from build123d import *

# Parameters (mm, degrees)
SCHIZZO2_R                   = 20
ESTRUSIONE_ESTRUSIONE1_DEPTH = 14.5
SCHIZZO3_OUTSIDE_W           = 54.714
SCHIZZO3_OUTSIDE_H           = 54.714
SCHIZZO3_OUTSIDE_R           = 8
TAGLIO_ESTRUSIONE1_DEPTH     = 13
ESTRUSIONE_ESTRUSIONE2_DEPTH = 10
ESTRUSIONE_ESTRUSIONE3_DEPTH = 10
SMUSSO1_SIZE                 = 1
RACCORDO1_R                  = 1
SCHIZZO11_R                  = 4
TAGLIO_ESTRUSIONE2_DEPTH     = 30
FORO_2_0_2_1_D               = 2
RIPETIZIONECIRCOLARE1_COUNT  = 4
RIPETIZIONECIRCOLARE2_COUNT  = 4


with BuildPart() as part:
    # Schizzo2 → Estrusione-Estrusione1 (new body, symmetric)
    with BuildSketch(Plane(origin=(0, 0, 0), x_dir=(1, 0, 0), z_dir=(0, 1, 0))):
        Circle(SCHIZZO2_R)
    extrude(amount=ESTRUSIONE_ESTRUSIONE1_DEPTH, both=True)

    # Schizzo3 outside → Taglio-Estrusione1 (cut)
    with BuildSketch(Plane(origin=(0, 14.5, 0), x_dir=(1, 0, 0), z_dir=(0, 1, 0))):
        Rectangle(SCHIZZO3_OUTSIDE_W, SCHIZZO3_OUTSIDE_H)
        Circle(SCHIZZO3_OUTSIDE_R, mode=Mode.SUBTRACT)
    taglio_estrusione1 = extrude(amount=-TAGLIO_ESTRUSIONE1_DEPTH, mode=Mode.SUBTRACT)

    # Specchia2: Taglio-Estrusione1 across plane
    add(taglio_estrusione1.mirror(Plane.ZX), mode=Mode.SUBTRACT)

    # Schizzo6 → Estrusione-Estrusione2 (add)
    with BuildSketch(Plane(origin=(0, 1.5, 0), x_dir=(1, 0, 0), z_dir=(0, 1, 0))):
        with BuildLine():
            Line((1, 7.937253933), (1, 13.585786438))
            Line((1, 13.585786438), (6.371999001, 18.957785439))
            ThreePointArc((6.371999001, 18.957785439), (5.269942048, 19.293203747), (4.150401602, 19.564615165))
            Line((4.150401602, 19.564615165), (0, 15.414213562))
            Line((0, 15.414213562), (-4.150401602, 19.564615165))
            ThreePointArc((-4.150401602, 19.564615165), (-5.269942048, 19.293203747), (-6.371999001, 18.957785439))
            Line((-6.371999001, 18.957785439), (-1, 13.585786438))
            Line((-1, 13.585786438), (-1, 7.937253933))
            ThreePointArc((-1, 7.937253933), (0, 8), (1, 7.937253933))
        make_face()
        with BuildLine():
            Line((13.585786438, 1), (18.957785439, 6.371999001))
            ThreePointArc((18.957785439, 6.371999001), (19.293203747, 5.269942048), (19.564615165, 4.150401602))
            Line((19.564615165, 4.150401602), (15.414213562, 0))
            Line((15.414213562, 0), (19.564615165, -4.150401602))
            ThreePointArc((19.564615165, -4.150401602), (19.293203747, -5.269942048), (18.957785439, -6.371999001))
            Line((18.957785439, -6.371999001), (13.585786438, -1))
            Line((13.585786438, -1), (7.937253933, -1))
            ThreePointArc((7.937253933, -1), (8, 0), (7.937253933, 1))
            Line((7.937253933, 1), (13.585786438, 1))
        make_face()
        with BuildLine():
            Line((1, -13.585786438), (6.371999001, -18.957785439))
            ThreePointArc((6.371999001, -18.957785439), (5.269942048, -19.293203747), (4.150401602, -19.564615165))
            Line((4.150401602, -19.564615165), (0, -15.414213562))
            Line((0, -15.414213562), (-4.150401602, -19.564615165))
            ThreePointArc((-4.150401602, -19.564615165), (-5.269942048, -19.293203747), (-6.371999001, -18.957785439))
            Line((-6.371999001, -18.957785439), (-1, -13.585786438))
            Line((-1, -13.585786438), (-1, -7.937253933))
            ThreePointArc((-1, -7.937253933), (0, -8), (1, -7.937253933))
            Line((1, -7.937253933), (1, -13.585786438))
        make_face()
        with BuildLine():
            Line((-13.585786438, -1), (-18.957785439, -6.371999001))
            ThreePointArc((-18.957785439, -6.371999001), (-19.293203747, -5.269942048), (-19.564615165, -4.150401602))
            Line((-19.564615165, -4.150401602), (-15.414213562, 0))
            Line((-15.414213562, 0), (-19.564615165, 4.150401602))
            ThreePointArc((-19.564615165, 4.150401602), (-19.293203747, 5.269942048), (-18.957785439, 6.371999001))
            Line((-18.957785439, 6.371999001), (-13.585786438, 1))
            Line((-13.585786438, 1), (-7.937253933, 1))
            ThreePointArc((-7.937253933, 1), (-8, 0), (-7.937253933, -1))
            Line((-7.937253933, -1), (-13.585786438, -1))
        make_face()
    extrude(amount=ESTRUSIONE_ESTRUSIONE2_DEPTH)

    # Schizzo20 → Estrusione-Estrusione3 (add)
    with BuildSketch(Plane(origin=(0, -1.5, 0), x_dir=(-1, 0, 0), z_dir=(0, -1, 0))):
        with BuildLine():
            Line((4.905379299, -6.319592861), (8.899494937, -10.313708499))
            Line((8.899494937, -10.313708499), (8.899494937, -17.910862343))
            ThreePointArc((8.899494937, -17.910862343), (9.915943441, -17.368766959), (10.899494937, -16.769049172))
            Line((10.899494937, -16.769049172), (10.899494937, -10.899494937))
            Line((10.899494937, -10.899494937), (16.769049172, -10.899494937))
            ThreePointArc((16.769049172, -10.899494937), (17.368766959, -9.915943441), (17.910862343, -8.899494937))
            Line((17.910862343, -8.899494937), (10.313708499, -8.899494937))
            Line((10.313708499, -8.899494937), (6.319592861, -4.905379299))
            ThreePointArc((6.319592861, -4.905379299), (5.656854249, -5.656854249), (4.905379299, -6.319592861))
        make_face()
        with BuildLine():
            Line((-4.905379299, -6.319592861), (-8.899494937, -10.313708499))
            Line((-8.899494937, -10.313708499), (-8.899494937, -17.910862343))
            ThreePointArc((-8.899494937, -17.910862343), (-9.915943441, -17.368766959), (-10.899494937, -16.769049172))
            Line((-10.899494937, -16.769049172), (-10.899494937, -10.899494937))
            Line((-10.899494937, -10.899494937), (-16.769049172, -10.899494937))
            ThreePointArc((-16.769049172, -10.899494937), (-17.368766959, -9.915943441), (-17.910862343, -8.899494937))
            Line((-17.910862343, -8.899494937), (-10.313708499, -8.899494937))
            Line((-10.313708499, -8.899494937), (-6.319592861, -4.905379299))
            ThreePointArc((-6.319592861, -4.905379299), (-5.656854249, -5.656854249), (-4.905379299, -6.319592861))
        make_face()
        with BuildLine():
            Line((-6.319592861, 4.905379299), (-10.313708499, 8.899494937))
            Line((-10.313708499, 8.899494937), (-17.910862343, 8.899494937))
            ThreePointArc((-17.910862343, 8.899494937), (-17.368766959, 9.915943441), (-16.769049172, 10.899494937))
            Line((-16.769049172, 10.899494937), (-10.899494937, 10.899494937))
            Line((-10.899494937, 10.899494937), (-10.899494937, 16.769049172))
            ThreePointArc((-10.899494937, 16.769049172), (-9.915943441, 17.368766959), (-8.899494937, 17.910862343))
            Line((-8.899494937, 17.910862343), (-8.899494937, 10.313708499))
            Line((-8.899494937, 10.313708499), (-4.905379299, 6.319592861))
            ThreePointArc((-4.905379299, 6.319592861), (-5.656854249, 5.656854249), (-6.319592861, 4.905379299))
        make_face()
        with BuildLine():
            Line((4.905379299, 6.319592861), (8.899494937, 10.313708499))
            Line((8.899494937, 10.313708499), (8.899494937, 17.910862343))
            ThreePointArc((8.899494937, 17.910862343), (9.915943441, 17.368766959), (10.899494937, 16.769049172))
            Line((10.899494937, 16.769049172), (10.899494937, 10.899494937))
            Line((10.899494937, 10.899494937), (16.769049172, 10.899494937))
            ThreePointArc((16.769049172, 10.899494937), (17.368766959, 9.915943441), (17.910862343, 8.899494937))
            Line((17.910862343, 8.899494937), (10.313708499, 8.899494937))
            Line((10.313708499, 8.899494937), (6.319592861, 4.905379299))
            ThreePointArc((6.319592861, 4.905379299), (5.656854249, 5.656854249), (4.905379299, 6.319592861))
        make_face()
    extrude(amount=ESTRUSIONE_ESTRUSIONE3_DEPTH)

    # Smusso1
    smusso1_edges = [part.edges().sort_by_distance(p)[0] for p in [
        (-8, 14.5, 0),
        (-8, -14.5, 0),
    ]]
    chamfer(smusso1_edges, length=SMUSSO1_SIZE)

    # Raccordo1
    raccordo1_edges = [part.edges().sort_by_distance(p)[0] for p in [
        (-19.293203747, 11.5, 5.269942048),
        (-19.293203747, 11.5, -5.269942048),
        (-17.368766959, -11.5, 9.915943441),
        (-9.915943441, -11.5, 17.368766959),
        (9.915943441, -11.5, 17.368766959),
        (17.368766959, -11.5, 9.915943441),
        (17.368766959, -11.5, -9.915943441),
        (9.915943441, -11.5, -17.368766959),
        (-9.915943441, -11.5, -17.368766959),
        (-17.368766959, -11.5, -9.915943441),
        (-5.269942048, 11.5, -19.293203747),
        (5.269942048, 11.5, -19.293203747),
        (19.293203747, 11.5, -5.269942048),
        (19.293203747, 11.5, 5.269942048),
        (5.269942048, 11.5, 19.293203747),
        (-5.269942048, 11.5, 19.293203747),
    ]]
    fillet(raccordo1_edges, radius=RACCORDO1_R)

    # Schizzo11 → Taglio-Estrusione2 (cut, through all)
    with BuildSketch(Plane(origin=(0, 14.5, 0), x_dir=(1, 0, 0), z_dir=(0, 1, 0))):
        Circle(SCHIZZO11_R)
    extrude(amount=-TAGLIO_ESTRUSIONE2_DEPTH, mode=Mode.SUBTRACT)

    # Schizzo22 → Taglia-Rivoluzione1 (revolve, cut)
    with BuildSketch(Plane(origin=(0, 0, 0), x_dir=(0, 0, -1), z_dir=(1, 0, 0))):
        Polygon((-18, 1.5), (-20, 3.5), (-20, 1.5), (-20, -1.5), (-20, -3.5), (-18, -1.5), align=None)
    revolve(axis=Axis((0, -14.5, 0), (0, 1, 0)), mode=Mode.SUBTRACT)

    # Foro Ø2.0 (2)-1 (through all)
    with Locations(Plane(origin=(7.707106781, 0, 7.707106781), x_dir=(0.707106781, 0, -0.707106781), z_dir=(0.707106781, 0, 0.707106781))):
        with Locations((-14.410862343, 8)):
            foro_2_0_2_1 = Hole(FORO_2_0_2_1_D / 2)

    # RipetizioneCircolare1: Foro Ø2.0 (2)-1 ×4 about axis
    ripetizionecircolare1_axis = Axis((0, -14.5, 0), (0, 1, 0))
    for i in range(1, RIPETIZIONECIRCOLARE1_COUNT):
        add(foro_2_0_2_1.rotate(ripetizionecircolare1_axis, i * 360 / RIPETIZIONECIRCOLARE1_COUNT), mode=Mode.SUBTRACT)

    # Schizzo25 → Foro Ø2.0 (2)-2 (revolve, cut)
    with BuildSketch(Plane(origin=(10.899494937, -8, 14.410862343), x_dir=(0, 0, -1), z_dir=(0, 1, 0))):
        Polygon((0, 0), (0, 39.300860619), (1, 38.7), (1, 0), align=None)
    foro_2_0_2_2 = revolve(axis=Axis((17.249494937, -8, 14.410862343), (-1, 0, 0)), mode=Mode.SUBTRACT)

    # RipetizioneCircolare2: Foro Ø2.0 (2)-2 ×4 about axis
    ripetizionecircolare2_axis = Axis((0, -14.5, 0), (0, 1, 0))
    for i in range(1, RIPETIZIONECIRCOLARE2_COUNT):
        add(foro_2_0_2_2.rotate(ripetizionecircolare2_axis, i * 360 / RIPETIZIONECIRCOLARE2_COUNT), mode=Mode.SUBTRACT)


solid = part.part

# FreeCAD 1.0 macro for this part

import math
import FreeCAD as App
import Part
import Sketcher

V = App.Vector
Q = App.Units.Quantity


def edges_at(feature, points):
    """Names of the edges that pass closest to the given points."""
    edges = feature.Shape.Edges
    near = lambda p: min(range(len(edges)), key=lambda i: edges[i].distToShape(Part.Vertex(*p))[0])
    return sorted({f"Edge{near(p) + 1}" for p in points})

doc = App.newDocument("Part")
body = doc.addObject("PartDesign::Body", "Body")

sketch1 = doc.addObject("Sketcher::SketchObject", "Sketch")
body.addObject(sketch1)
sketch1.AttachmentSupport = (doc.XZ_Plane, [""])
sketch1.MapMode = "FlatFace"
sketch1.addGeometry(Part.Circle(V(0, 0, 0), V(0, 0, 1), 20), False)
sketch1.addConstraint(Sketcher.Constraint("Coincident", 0, 3, -1, 1))
sketch1.addConstraint(Sketcher.Constraint("Diameter", 0, 40.0))
pad1 = doc.addObject("PartDesign::Pad", "Pad")
body.addObject(pad1)
pad1.Profile = sketch1
pad1.Length = 29
pad1.Midplane = True

sketch2 = doc.addObject("Sketcher::SketchObject", "Sketch001")
body.addObject(sketch2)
sketch2.AttachmentSupport = (doc.XZ_Plane, [""])
sketch2.MapMode = "FlatFace"
sketch2.AttachmentOffset = App.Placement(V(0, 0, -14.5), App.Rotation())
sketch2.addGeometry(Part.LineSegment(V(-27, -27, 0), V(-27, 27, 0)), False)
sketch2.addGeometry(Part.LineSegment(V(-27, 27, 0), V(27, 27, 0)), False)
sketch2.addGeometry(Part.LineSegment(V(27, 27, 0), V(27, -27, 0)), False)
sketch2.addGeometry(Part.LineSegment(V(27, -27, 0), V(-27, -27, 0)), False)
sketch2.addGeometry(Part.Circle(V(0, 0, 0), V(0, 0, 1), 8), False)
sketch2.addConstraint(Sketcher.Constraint("Coincident", 0, 2, 1, 1))
sketch2.addConstraint(Sketcher.Constraint("Coincident", 1, 2, 2, 1))
sketch2.addConstraint(Sketcher.Constraint("Coincident", 2, 2, 3, 1))
sketch2.addConstraint(Sketcher.Constraint("Coincident", 3, 2, 0, 1))
sketch2.addConstraint(Sketcher.Constraint("Vertical", 0))
sketch2.addConstraint(Sketcher.Constraint("Horizontal", 1))
sketch2.addConstraint(Sketcher.Constraint("Vertical", 2))
sketch2.addConstraint(Sketcher.Constraint("Horizontal", 3))
sketch2.addConstraint(Sketcher.Constraint("Coincident", 4, 3, -1, 1))
sketch2.addConstraint(Sketcher.Constraint("Symmetric", 0, 2, 2, 2, -1, 1))
sketch2.addConstraint(Sketcher.Constraint("Equal", 3, 0))
sketch2.addConstraint(Sketcher.Constraint("Diameter", 4, 16.0))
sketch2.addConstraint(Sketcher.Constraint("DistanceX", 1, 1, 1, 2, 54.714))
pocket1 = doc.addObject("PartDesign::Pocket", "Pocket")
body.addObject(pocket1)
pocket1.Profile = sketch2
pocket1.Length = 13
pocket1.Reversed = True
doc.recompute()

mirrored = doc.addObject("PartDesign::Mirrored", "Mirrored")
body.addObject(mirrored)
mirrored.Originals = [pocket1]
mirrored.MirrorPlane = (doc.XZ_Plane, [""])
body.Tip = mirrored

sketch3 = doc.addObject("Sketcher::SketchObject", "Sketch002")
body.addObject(sketch3)
sketch3.AttachmentSupport = (doc.XZ_Plane, [""])
sketch3.MapMode = "FlatFace"
sketch3.AttachmentOffset = App.Placement(V(0, 0, -1.5), App.Rotation())
sketch3.addGeometry(Part.LineSegment(V(1, -7.9, 0), V(1, -13.6, 0)), False)
sketch3.addGeometry(Part.LineSegment(V(1, -13.6, 0), V(6.4, -19, 0)), False)
sketch3.addGeometry(Part.ArcOfCircle(Part.Circle(V(0, 0, 0), V(0, 0, 1), 20), math.radians(-78.02), math.radians(-71.42)), False)
sketch3.addGeometry(Part.LineSegment(V(4.2, -19.6, 0), V(0, -15.4, 0)), False)
sketch3.addGeometry(Part.LineSegment(V(0, -15.4, 0), V(-4.2, -19.6, 0)), False)
sketch3.addGeometry(Part.ArcOfCircle(Part.Circle(V(0, 0, 0), V(0, 0, 1), 20), math.radians(-108.58), math.radians(-101.98)), False)
sketch3.addGeometry(Part.LineSegment(V(-6.4, -19, 0), V(-1, -13.6, 0)), False)
sketch3.addGeometry(Part.LineSegment(V(-1, -13.6, 0), V(-1, -7.9, 0)), False)
sketch3.addGeometry(Part.ArcOfCircle(Part.Circle(V(0, 0, 0), V(0, 0, 1), 8), math.radians(-97.18), math.radians(-82.82)), False)
sketch3.addGeometry(Part.LineSegment(V(19, -6.4, 0), V(13.6, -1, 0)), False)
sketch3.addGeometry(Part.LineSegment(V(13.6, -1, 0), V(7.9, -1, 0)), False)
sketch3.addGeometry(Part.ArcOfCircle(Part.Circle(V(0, 0, 0), V(0, 0, 1), 8), math.radians(-7.18), math.radians(7.18)), False)
sketch3.addGeometry(Part.LineSegment(V(7.9, 1, 0), V(13.6, 1, 0)), False)
sketch3.addGeometry(Part.LineSegment(V(13.6, 1, 0), V(19, 6.4, 0)), False)
sketch3.addGeometry(Part.ArcOfCircle(Part.Circle(V(0, 0, 0), V(0, 0, 1), 20), math.radians(11.98), math.radians(18.58)), False)
sketch3.addGeometry(Part.LineSegment(V(19.6, 4.2, 0), V(15.4, 0, 0)), False)
sketch3.addGeometry(Part.LineSegment(V(15.4, 0, 0), V(19.6, -4.2, 0)), False)
sketch3.addGeometry(Part.ArcOfCircle(Part.Circle(V(0, 0, 0), V(0, 0, 1), 20), math.radians(-18.58), math.radians(-11.98)), False)
sketch3.addGeometry(Part.LineSegment(V(6.4, 19, 0), V(1, 13.6, 0)), False)
sketch3.addGeometry(Part.LineSegment(V(1, 13.6, 0), V(1, 7.9, 0)), False)
sketch3.addGeometry(Part.ArcOfCircle(Part.Circle(V(0, 0, 0), V(0, 0, 1), 8), math.radians(82.82), math.radians(97.18)), False)
sketch3.addGeometry(Part.LineSegment(V(-1, 7.9, 0), V(-1, 13.6, 0)), False)
sketch3.addGeometry(Part.LineSegment(V(-1, 13.6, 0), V(-6.4, 19, 0)), False)
sketch3.addGeometry(Part.ArcOfCircle(Part.Circle(V(0, 0, 0), V(0, 0, 1), 20), math.radians(101.98), math.radians(108.58)), False)
sketch3.addGeometry(Part.LineSegment(V(-4.2, 19.6, 0), V(0, 15.4, 0)), False)
sketch3.addGeometry(Part.LineSegment(V(0, 15.4, 0), V(4.2, 19.6, 0)), False)
sketch3.addGeometry(Part.ArcOfCircle(Part.Circle(V(0, 0, 0), V(0, 0, 1), 20), math.radians(71.42), math.radians(78.02)), False)
sketch3.addGeometry(Part.LineSegment(V(-19, 6.4, 0), V(-13.6, 1, 0)), False)
sketch3.addGeometry(Part.LineSegment(V(-13.6, 1, 0), V(-7.9, 1, 0)), False)
sketch3.addGeometry(Part.ArcOfCircle(Part.Circle(V(0, 0, 0), V(0, 0, 1), 8), math.radians(172.82), math.radians(187.18)), False)
sketch3.addGeometry(Part.LineSegment(V(-7.9, -1, 0), V(-13.6, -1, 0)), False)
sketch3.addGeometry(Part.LineSegment(V(-13.6, -1, 0), V(-19, -6.4, 0)), False)
sketch3.addGeometry(Part.ArcOfCircle(Part.Circle(V(0, 0, 0), V(0, 0, 1), 20), math.radians(-168.02), math.radians(-161.42)), False)
sketch3.addGeometry(Part.LineSegment(V(-19.6, -4.2, 0), V(-15.4, 0, 0)), False)
sketch3.addGeometry(Part.LineSegment(V(-15.4, 0, 0), V(-19.6, 4.2, 0)), False)
sketch3.addGeometry(Part.ArcOfCircle(Part.Circle(V(0, 0, 0), V(0, 0, 1), 20), math.radians(161.42), math.radians(168.02)), False)
sketch3.addConstraint(Sketcher.Constraint("Coincident", 0, 2, 1, 1))
sketch3.addConstraint(Sketcher.Constraint("Coincident", 1, 2, 2, 2))
sketch3.addConstraint(Sketcher.Constraint("Coincident", 2, 1, 3, 1))
sketch3.addConstraint(Sketcher.Constraint("Coincident", 3, 2, 4, 1))
sketch3.addConstraint(Sketcher.Constraint("Coincident", 4, 2, 5, 2))
sketch3.addConstraint(Sketcher.Constraint("Coincident", 5, 1, 6, 1))
sketch3.addConstraint(Sketcher.Constraint("Coincident", 6, 2, 7, 1))
sketch3.addConstraint(Sketcher.Constraint("Coincident", 7, 2, 8, 1))
sketch3.addConstraint(Sketcher.Constraint("Coincident", 8, 2, 0, 1))
sketch3.addConstraint(Sketcher.Constraint("Coincident", 9, 2, 10, 1))
sketch3.addConstraint(Sketcher.Constraint("Coincident", 10, 2, 11, 1))
sketch3.addConstraint(Sketcher.Constraint("Coincident", 11, 2, 12, 1))
sketch3.addConstraint(Sketcher.Constraint("Coincident", 12, 2, 13, 1))
sketch3.addConstraint(Sketcher.Constraint("Coincident", 13, 2, 14, 2))
sketch3.addConstraint(Sketcher.Constraint("Coincident", 14, 1, 15, 1))
sketch3.addConstraint(Sketcher.Constraint("Coincident", 15, 2, 16, 1))
sketch3.addConstraint(Sketcher.Constraint("Coincident", 16, 2, 17, 2))
sketch3.addConstraint(Sketcher.Constraint("Coincident", 17, 1, 9, 1))
sketch3.addConstraint(Sketcher.Constraint("Coincident", 18, 2, 19, 1))
sketch3.addConstraint(Sketcher.Constraint("Coincident", 19, 2, 20, 1))
sketch3.addConstraint(Sketcher.Constraint("Coincident", 20, 2, 21, 1))
sketch3.addConstraint(Sketcher.Constraint("Coincident", 21, 2, 22, 1))
sketch3.addConstraint(Sketcher.Constraint("Coincident", 22, 2, 23, 2))
sketch3.addConstraint(Sketcher.Constraint("Coincident", 23, 1, 24, 1))
sketch3.addConstraint(Sketcher.Constraint("Coincident", 24, 2, 25, 1))
sketch3.addConstraint(Sketcher.Constraint("Coincident", 25, 2, 26, 2))
sketch3.addConstraint(Sketcher.Constraint("Coincident", 26, 1, 18, 1))
sketch3.addConstraint(Sketcher.Constraint("Coincident", 27, 2, 28, 1))
sketch3.addConstraint(Sketcher.Constraint("Coincident", 28, 2, 29, 1))
sketch3.addConstraint(Sketcher.Constraint("Coincident", 29, 2, 30, 1))
sketch3.addConstraint(Sketcher.Constraint("Coincident", 30, 2, 31, 1))
sketch3.addConstraint(Sketcher.Constraint("Coincident", 31, 2, 32, 2))
sketch3.addConstraint(Sketcher.Constraint("Coincident", 32, 1, 33, 1))
sketch3.addConstraint(Sketcher.Constraint("Coincident", 33, 2, 34, 1))
sketch3.addConstraint(Sketcher.Constraint("Coincident", 34, 2, 35, 2))
sketch3.addConstraint(Sketcher.Constraint("Coincident", 35, 1, 27, 1))
sketch3.addConstraint(Sketcher.Constraint("Vertical", 0))
sketch3.addConstraint(Sketcher.Constraint("Vertical", 7))
sketch3.addConstraint(Sketcher.Constraint("Horizontal", 10))
sketch3.addConstraint(Sketcher.Constraint("Horizontal", 12))
sketch3.addConstraint(Sketcher.Constraint("Vertical", 19))
sketch3.addConstraint(Sketcher.Constraint("Vertical", 21))
sketch3.addConstraint(Sketcher.Constraint("Horizontal", 28))
sketch3.addConstraint(Sketcher.Constraint("Horizontal", 30))
sketch3.addConstraint(Sketcher.Constraint("Coincident", 2, 3, -1, 1))
sketch3.addConstraint(Sketcher.Constraint("Coincident", 5, 3, -1, 1))
sketch3.addConstraint(Sketcher.Constraint("Coincident", 8, 3, -1, 1))
sketch3.addConstraint(Sketcher.Constraint("Coincident", 11, 3, -1, 1))
sketch3.addConstraint(Sketcher.Constraint("Coincident", 14, 3, -1, 1))
sketch3.addConstraint(Sketcher.Constraint("Coincident", 17, 3, -1, 1))
sketch3.addConstraint(Sketcher.Constraint("Coincident", 20, 3, -1, 1))
sketch3.addConstraint(Sketcher.Constraint("Coincident", 23, 3, -1, 1))
sketch3.addConstraint(Sketcher.Constraint("Coincident", 26, 3, -1, 1))
sketch3.addConstraint(Sketcher.Constraint("Coincident", 29, 3, -1, 1))
sketch3.addConstraint(Sketcher.Constraint("Coincident", 32, 3, -1, 1))
sketch3.addConstraint(Sketcher.Constraint("Coincident", 35, 3, -1, 1))
sketch3.addConstraint(Sketcher.Constraint("Equal", 2, 5))
sketch3.addConstraint(Sketcher.Constraint("Equal", 8, 11))
sketch3.addConstraint(Sketcher.Constraint("Equal", 5, 14))
sketch3.addConstraint(Sketcher.Constraint("Equal", 14, 17))
sketch3.addConstraint(Sketcher.Constraint("Equal", 11, 20))
sketch3.addConstraint(Sketcher.Constraint("Equal", 17, 23))
sketch3.addConstraint(Sketcher.Constraint("Equal", 23, 26))
sketch3.addConstraint(Sketcher.Constraint("Equal", 20, 29))
sketch3.addConstraint(Sketcher.Constraint("Equal", 26, 32))
sketch3.addConstraint(Sketcher.Constraint("Equal", 32, 35))
sketch3.addConstraint(Sketcher.Constraint("Symmetric", 6, 2, 18, 2, -1, 1))
sketch3.addConstraint(Sketcher.Constraint("Symmetric", 0, 2, 21, 2, -1, 1))
sketch3.addConstraint(Sketcher.Constraint("Symmetric", 3, 2, 24, 2, -1, 1))
sketch3.addConstraint(Sketcher.Constraint("Symmetric", 9, 2, 27, 2, -1, 1))
sketch3.addConstraint(Sketcher.Constraint("Symmetric", 12, 2, 30, 2, -1, 1))
sketch3.addConstraint(Sketcher.Constraint("Symmetric", 15, 2, 33, 2, -1, 1))
sketch3.addConstraint(Sketcher.Constraint("Symmetric", 0, 2, 6, 2, -2))
sketch3.addConstraint(Sketcher.Constraint("Symmetric", 12, 2, 27, 2, -2))
sketch3.addConstraint(Sketcher.Constraint("PointOnObject", 3, 2, -2))
sketch3.addConstraint(Sketcher.Constraint("PointOnObject", 15, 2, -1))
sketch3.addConstraint(Sketcher.Constraint("Parallel", 1, 3))
sketch3.addConstraint(Sketcher.Constraint("Perpendicular", 3, 4))
sketch3.addConstraint(Sketcher.Constraint("Parallel", 4, 6))
sketch3.addConstraint(Sketcher.Constraint("Perpendicular", 6, 9))
sketch3.addConstraint(Sketcher.Constraint("Perpendicular", 9, 13))
sketch3.addConstraint(Sketcher.Constraint("Parallel", 13, 15))
sketch3.addConstraint(Sketcher.Constraint("Perpendicular", 15, 16))
sketch3.addConstraint(Sketcher.Constraint("Perpendicular", 16, 18))
sketch3.addConstraint(Sketcher.Constraint("Perpendicular", 18, 22))
sketch3.addConstraint(Sketcher.Constraint("Parallel", 22, 24))
sketch3.addConstraint(Sketcher.Constraint("Perpendicular", 24, 25))
sketch3.addConstraint(Sketcher.Constraint("Perpendicular", 25, 27))
sketch3.addConstraint(Sketcher.Constraint("Perpendicular", 27, 31))
sketch3.addConstraint(Sketcher.Constraint("Parallel", 31, 33))
sketch3.addConstraint(Sketcher.Constraint("Perpendicular", 33, 34))
sketch3.addConstraint(Sketcher.Constraint("Horizontal", 2, 1, 4, 2))
sketch3.addConstraint(Sketcher.Constraint("Equal", 30, 0))
sketch3.addConstraint(Sketcher.Constraint("Equal", 6, 9))
sketch3.addConstraint(Sketcher.Constraint("Equal", 4, 15))
sketch3.addConstraint(Sketcher.Constraint("Radius", 2, 20.0))
sketch3.addConstraint(Sketcher.Constraint("Radius", 8, 8.0))
sketch3.addConstraint(Sketcher.Constraint("DistanceX", -1, 1, 0, 2, 1.0))
sketch3.addConstraint(Sketcher.Constraint("DistanceX", -1, 1, 1, 2, 6.371999))
sketch3.addConstraint(Sketcher.Constraint("DistanceX", -1, 1, 2, 1, 4.150402))
pad2 = doc.addObject("PartDesign::Pad", "Pad001")
body.addObject(pad2)
pad2.Profile = sketch3
pad2.Length = 10
pad2.Reversed = True

sketch4 = doc.addObject("Sketcher::SketchObject", "Sketch003")
body.addObject(sketch4)
sketch4.AttachmentSupport = (doc.XZ_Plane, [""])
sketch4.MapMode = "FlatFace"
sketch4.AttachmentOffset = App.Placement(V(0, 0, 1.5), App.Rotation())
sketch4.addGeometry(Part.LineSegment(V(-4.9, 6.3, 0), V(-8.9, 10.3, 0)), False)
sketch4.addGeometry(Part.LineSegment(V(-8.9, 10.3, 0), V(-8.9, 17.9, 0)), False)
sketch4.addGeometry(Part.ArcOfCircle(Part.Circle(V(0, 0, 0), V(0, 0, 1), 20), math.radians(116.42), math.radians(123.02)), False)
sketch4.addGeometry(Part.LineSegment(V(-10.9, 16.8, 0), V(-10.9, 10.9, 0)), False)
sketch4.addGeometry(Part.LineSegment(V(-10.9, 10.9, 0), V(-16.8, 10.9, 0)), False)
sketch4.addGeometry(Part.ArcOfCircle(Part.Circle(V(0, 0, 0), V(0, 0, 1), 20), math.radians(146.98), math.radians(153.58)), False)
sketch4.addGeometry(Part.LineSegment(V(-17.9, 8.9, 0), V(-10.3, 8.9, 0)), False)
sketch4.addGeometry(Part.LineSegment(V(-10.3, 8.9, 0), V(-6.3, 4.9, 0)), False)
sketch4.addGeometry(Part.ArcOfCircle(Part.Circle(V(0, 0, 0), V(0, 0, 1), 8), math.radians(127.82), math.radians(142.18)), False)
sketch4.addGeometry(Part.LineSegment(V(8.9, 10.3, 0), V(4.9, 6.3, 0)), False)
sketch4.addGeometry(Part.ArcOfCircle(Part.Circle(V(0, 0, 0), V(0, 0, 1), 8), math.radians(37.82), math.radians(52.18)), False)
sketch4.addGeometry(Part.LineSegment(V(6.3, 4.9, 0), V(10.3, 8.9, 0)), False)
sketch4.addGeometry(Part.LineSegment(V(10.3, 8.9, 0), V(17.9, 8.9, 0)), False)
sketch4.addGeometry(Part.ArcOfCircle(Part.Circle(V(0, 0, 0), V(0, 0, 1), 20), math.radians(26.42), math.radians(33.02)), False)
sketch4.addGeometry(Part.LineSegment(V(16.8, 10.9, 0), V(10.9, 10.9, 0)), False)
sketch4.addGeometry(Part.LineSegment(V(10.9, 10.9, 0), V(10.9, 16.8, 0)), False)
sketch4.addGeometry(Part.ArcOfCircle(Part.Circle(V(0, 0, 0), V(0, 0, 1), 20), math.radians(56.98), math.radians(63.58)), False)
sketch4.addGeometry(Part.LineSegment(V(8.9, 17.9, 0), V(8.9, 10.3, 0)), False)
sketch4.addGeometry(Part.LineSegment(V(10.3, -8.9, 0), V(6.3, -4.9, 0)), False)
sketch4.addGeometry(Part.ArcOfCircle(Part.Circle(V(0, 0, 0), V(0, 0, 1), 8), math.radians(-52.18), math.radians(-37.82)), False)
sketch4.addGeometry(Part.LineSegment(V(4.9, -6.3, 0), V(8.9, -10.3, 0)), False)
sketch4.addGeometry(Part.LineSegment(V(8.9, -10.3, 0), V(8.9, -17.9, 0)), False)
sketch4.addGeometry(Part.ArcOfCircle(Part.Circle(V(0, 0, 0), V(0, 0, 1), 20), math.radians(-63.58), math.radians(-56.98)), False)
sketch4.addGeometry(Part.LineSegment(V(10.9, -16.8, 0), V(10.9, -10.9, 0)), False)
sketch4.addGeometry(Part.LineSegment(V(10.9, -10.9, 0), V(16.8, -10.9, 0)), False)
sketch4.addGeometry(Part.ArcOfCircle(Part.Circle(V(0, 0, 0), V(0, 0, 1), 20), math.radians(-33.02), math.radians(-26.42)), False)
sketch4.addGeometry(Part.LineSegment(V(17.9, -8.9, 0), V(10.3, -8.9, 0)), False)
sketch4.addGeometry(Part.LineSegment(V(-8.9, -10.3, 0), V(-4.9, -6.3, 0)), False)
sketch4.addGeometry(Part.ArcOfCircle(Part.Circle(V(0, 0, 0), V(0, 0, 1), 8), math.radians(-142.18), math.radians(-127.82)), False)
sketch4.addGeometry(Part.LineSegment(V(-6.3, -4.9, 0), V(-10.3, -8.9, 0)), False)
sketch4.addGeometry(Part.LineSegment(V(-10.3, -8.9, 0), V(-17.9, -8.9, 0)), False)
sketch4.addGeometry(Part.ArcOfCircle(Part.Circle(V(0, 0, 0), V(0, 0, 1), 20), math.radians(-153.58), math.radians(-146.98)), False)
sketch4.addGeometry(Part.LineSegment(V(-16.8, -10.9, 0), V(-10.9, -10.9, 0)), False)
sketch4.addGeometry(Part.LineSegment(V(-10.9, -10.9, 0), V(-10.9, -16.8, 0)), False)
sketch4.addGeometry(Part.ArcOfCircle(Part.Circle(V(0, 0, 0), V(0, 0, 1), 20), math.radians(-123.02), math.radians(-116.42)), False)
sketch4.addGeometry(Part.LineSegment(V(-8.9, -17.9, 0), V(-8.9, -10.3, 0)), False)
sketch4.addConstraint(Sketcher.Constraint("Coincident", 0, 2, 1, 1))
sketch4.addConstraint(Sketcher.Constraint("Coincident", 1, 2, 2, 1))
sketch4.addConstraint(Sketcher.Constraint("Coincident", 2, 2, 3, 1))
sketch4.addConstraint(Sketcher.Constraint("Coincident", 3, 2, 4, 1))
sketch4.addConstraint(Sketcher.Constraint("Coincident", 4, 2, 5, 1))
sketch4.addConstraint(Sketcher.Constraint("Coincident", 5, 2, 6, 1))
sketch4.addConstraint(Sketcher.Constraint("Coincident", 6, 2, 7, 1))
sketch4.addConstraint(Sketcher.Constraint("Coincident", 7, 2, 8, 2))
sketch4.addConstraint(Sketcher.Constraint("Coincident", 8, 1, 0, 1))
sketch4.addConstraint(Sketcher.Constraint("Coincident", 9, 2, 10, 2))
sketch4.addConstraint(Sketcher.Constraint("Coincident", 10, 1, 11, 1))
sketch4.addConstraint(Sketcher.Constraint("Coincident", 11, 2, 12, 1))
sketch4.addConstraint(Sketcher.Constraint("Coincident", 12, 2, 13, 1))
sketch4.addConstraint(Sketcher.Constraint("Coincident", 13, 2, 14, 1))
sketch4.addConstraint(Sketcher.Constraint("Coincident", 14, 2, 15, 1))
sketch4.addConstraint(Sketcher.Constraint("Coincident", 15, 2, 16, 1))
sketch4.addConstraint(Sketcher.Constraint("Coincident", 16, 2, 17, 1))
sketch4.addConstraint(Sketcher.Constraint("Coincident", 17, 2, 9, 1))
sketch4.addConstraint(Sketcher.Constraint("Coincident", 18, 2, 19, 2))
sketch4.addConstraint(Sketcher.Constraint("Coincident", 19, 1, 20, 1))
sketch4.addConstraint(Sketcher.Constraint("Coincident", 20, 2, 21, 1))
sketch4.addConstraint(Sketcher.Constraint("Coincident", 21, 2, 22, 1))
sketch4.addConstraint(Sketcher.Constraint("Coincident", 22, 2, 23, 1))
sketch4.addConstraint(Sketcher.Constraint("Coincident", 23, 2, 24, 1))
sketch4.addConstraint(Sketcher.Constraint("Coincident", 24, 2, 25, 1))
sketch4.addConstraint(Sketcher.Constraint("Coincident", 25, 2, 26, 1))
sketch4.addConstraint(Sketcher.Constraint("Coincident", 26, 2, 18, 1))
sketch4.addConstraint(Sketcher.Constraint("Coincident", 27, 2, 28, 2))
sketch4.addConstraint(Sketcher.Constraint("Coincident", 28, 1, 29, 1))
sketch4.addConstraint(Sketcher.Constraint("Coincident", 29, 2, 30, 1))
sketch4.addConstraint(Sketcher.Constraint("Coincident", 30, 2, 31, 1))
sketch4.addConstraint(Sketcher.Constraint("Coincident", 31, 2, 32, 1))
sketch4.addConstraint(Sketcher.Constraint("Coincident", 32, 2, 33, 1))
sketch4.addConstraint(Sketcher.Constraint("Coincident", 33, 2, 34, 1))
sketch4.addConstraint(Sketcher.Constraint("Coincident", 34, 2, 35, 1))
sketch4.addConstraint(Sketcher.Constraint("Coincident", 35, 2, 27, 1))
sketch4.addConstraint(Sketcher.Constraint("Vertical", 1))
sketch4.addConstraint(Sketcher.Constraint("Vertical", 3))
sketch4.addConstraint(Sketcher.Constraint("Horizontal", 4))
sketch4.addConstraint(Sketcher.Constraint("Horizontal", 6))
sketch4.addConstraint(Sketcher.Constraint("Horizontal", 12))
sketch4.addConstraint(Sketcher.Constraint("Horizontal", 14))
sketch4.addConstraint(Sketcher.Constraint("Vertical", 15))
sketch4.addConstraint(Sketcher.Constraint("Vertical", 17))
sketch4.addConstraint(Sketcher.Constraint("Vertical", 21))
sketch4.addConstraint(Sketcher.Constraint("Vertical", 23))
sketch4.addConstraint(Sketcher.Constraint("Horizontal", 24))
sketch4.addConstraint(Sketcher.Constraint("Horizontal", 26))
sketch4.addConstraint(Sketcher.Constraint("Horizontal", 30))
sketch4.addConstraint(Sketcher.Constraint("Horizontal", 32))
sketch4.addConstraint(Sketcher.Constraint("Vertical", 33))
sketch4.addConstraint(Sketcher.Constraint("Vertical", 35))
sketch4.addConstraint(Sketcher.Constraint("Coincident", 2, 3, -1, 1))
sketch4.addConstraint(Sketcher.Constraint("Coincident", 5, 3, -1, 1))
sketch4.addConstraint(Sketcher.Constraint("Coincident", 8, 3, -1, 1))
sketch4.addConstraint(Sketcher.Constraint("Coincident", 10, 3, -1, 1))
sketch4.addConstraint(Sketcher.Constraint("Coincident", 13, 3, -1, 1))
sketch4.addConstraint(Sketcher.Constraint("Coincident", 16, 3, -1, 1))
sketch4.addConstraint(Sketcher.Constraint("Coincident", 19, 3, -1, 1))
sketch4.addConstraint(Sketcher.Constraint("Coincident", 22, 3, -1, 1))
sketch4.addConstraint(Sketcher.Constraint("Coincident", 25, 3, -1, 1))
sketch4.addConstraint(Sketcher.Constraint("Coincident", 28, 3, -1, 1))
sketch4.addConstraint(Sketcher.Constraint("Coincident", 31, 3, -1, 1))
sketch4.addConstraint(Sketcher.Constraint("Coincident", 34, 3, -1, 1))
sketch4.addConstraint(Sketcher.Constraint("Equal", 2, 5))
sketch4.addConstraint(Sketcher.Constraint("Equal", 8, 10))
sketch4.addConstraint(Sketcher.Constraint("Equal", 5, 13))
sketch4.addConstraint(Sketcher.Constraint("Equal", 13, 16))
sketch4.addConstraint(Sketcher.Constraint("Equal", 10, 19))
sketch4.addConstraint(Sketcher.Constraint("Equal", 16, 22))
sketch4.addConstraint(Sketcher.Constraint("Equal", 22, 25))
sketch4.addConstraint(Sketcher.Constraint("Equal", 19, 28))
sketch4.addConstraint(Sketcher.Constraint("Equal", 25, 31))
sketch4.addConstraint(Sketcher.Constraint("Equal", 31, 34))
sketch4.addConstraint(Sketcher.Constraint("Symmetric", 0, 2, 20, 2, -1, 1))
sketch4.addConstraint(Sketcher.Constraint("Symmetric", 3, 2, 23, 2, -1, 1))
sketch4.addConstraint(Sketcher.Constraint("Symmetric", 6, 2, 26, 2, -1, 1))
sketch4.addConstraint(Sketcher.Constraint("Symmetric", 11, 2, 29, 2, -1, 1))
sketch4.addConstraint(Sketcher.Constraint("Symmetric", 14, 2, 32, 2, -1, 1))
sketch4.addConstraint(Sketcher.Constraint("Symmetric", 17, 2, 35, 2, -1, 1))
sketch4.addConstraint(Sketcher.Constraint("Symmetric", 6, 2, 11, 2, -2))
sketch4.addConstraint(Sketcher.Constraint("Symmetric", 3, 2, 14, 2, -2))
sketch4.addConstraint(Sketcher.Constraint("Symmetric", 0, 2, 17, 2, -2))
sketch4.addConstraint(Sketcher.Constraint("Parallel", 0, 7))
sketch4.addConstraint(Sketcher.Constraint("Perpendicular", 7, 9))
sketch4.addConstraint(Sketcher.Constraint("Parallel", 9, 11))
sketch4.addConstraint(Sketcher.Constraint("Perpendicular", 11, 18))
sketch4.addConstraint(Sketcher.Constraint("Parallel", 18, 20))
sketch4.addConstraint(Sketcher.Constraint("Perpendicular", 20, 27))
sketch4.addConstraint(Sketcher.Constraint("Parallel", 27, 29))
sketch4.addConstraint(Sketcher.Constraint("Horizontal", 8, 1, 9, 2))
sketch4.addConstraint(Sketcher.Constraint("Equal", 30, 1))
sketch4.addConstraint(Sketcher.Constraint("Equal", 32, 3))
sketch4.addConstraint(Sketcher.Constraint("Equal", 0, 7))
sketch4.addConstraint(Sketcher.Constraint("Radius", 2, 20.0))
sketch4.addConstraint(Sketcher.Constraint("Radius", 8, 8.0))
sketch4.addConstraint(Sketcher.Constraint("DistanceX", 2, 2, 1, 2, 2.0))
sketch4.addConstraint(Sketcher.Constraint("DistanceX", 4, 2, 4, 1, 5.869554))
sketch4.addConstraint(Sketcher.Constraint("DistanceX", 6, 1, 6, 2, 7.597154))
pad3 = doc.addObject("PartDesign::Pad", "Pad002")
body.addObject(pad3)
pad3.Profile = sketch4
pad3.Length = 10
doc.recompute()

chamfer = doc.addObject("PartDesign::Chamfer", "Chamfer")
body.addObject(chamfer)
chamfer.Base = (pad3, edges_at(pad3, [(-8, 14.5, 0), (-8, -14.5, 0)]))
chamfer.Size = 1
doc.recompute()

fillet = doc.addObject("PartDesign::Fillet", "Fillet")
body.addObject(fillet)
fillet.Base = (chamfer, edges_at(chamfer, [
    (-19.293, 11.5, 5.27),
    (-19.293, 11.5, -5.27),
    (-17.369, -11.5, 9.916),
    (-9.916, -11.5, 17.369),
    (9.916, -11.5, 17.369),
    (17.369, -11.5, 9.916),
    (17.369, -11.5, -9.916),
    (9.916, -11.5, -17.369),
    (-9.916, -11.5, -17.369),
    (-17.369, -11.5, -9.916),
    (-5.27, 11.5, -19.293),
    (5.27, 11.5, -19.293),
    (19.293, 11.5, -5.27),
    (19.293, 11.5, 5.27),
    (5.27, 11.5, 19.293),
    (-5.27, 11.5, 19.293),
]))
fillet.Radius = 1

sketch5 = doc.addObject("Sketcher::SketchObject", "Sketch004")
body.addObject(sketch5)
sketch5.AttachmentSupport = (doc.XZ_Plane, [""])
sketch5.MapMode = "FlatFace"
sketch5.AttachmentOffset = App.Placement(V(0, 0, -14.5), App.Rotation())
sketch5.addGeometry(Part.Circle(V(0, 0, 0), V(0, 0, 1), 4), False)
sketch5.addConstraint(Sketcher.Constraint("Coincident", 0, 3, -1, 1))
sketch5.addConstraint(Sketcher.Constraint("Diameter", 0, 8.0))
pocket2 = doc.addObject("PartDesign::Pocket", "Pocket001")
body.addObject(pocket2)
pocket2.Profile = sketch5
pocket2.Type = "ThroughAll"
pocket2.Reversed = True

sketch6 = doc.addObject("Sketcher::SketchObject", "Sketch005")
body.addObject(sketch6)
sketch6.AttachmentSupport = (doc.YZ_Plane, [""])
sketch6.MapMode = "FlatFace"
sketch6.addGeometry(Part.LineSegment(V(1.5, 18, 0), V(3.5, 20, 0)), False)
sketch6.addGeometry(Part.LineSegment(V(3.5, 20, 0), V(-3.5, 20, 0)), False)
sketch6.addGeometry(Part.LineSegment(V(-3.5, 20, 0), V(-1.5, 18, 0)), False)
sketch6.addGeometry(Part.LineSegment(V(-1.5, 18, 0), V(1.5, 18, 0)), False)
sketch6.addConstraint(Sketcher.Constraint("Coincident", 0, 2, 1, 1))
sketch6.addConstraint(Sketcher.Constraint("Coincident", 1, 2, 2, 1))
sketch6.addConstraint(Sketcher.Constraint("Coincident", 2, 2, 3, 1))
sketch6.addConstraint(Sketcher.Constraint("Coincident", 3, 2, 0, 1))
sketch6.addConstraint(Sketcher.Constraint("Horizontal", 1))
sketch6.addConstraint(Sketcher.Constraint("Horizontal", 3))
sketch6.addConstraint(Sketcher.Constraint("Perpendicular", 0, 2))
sketch6.addConstraint(Sketcher.Constraint("Equal", 0, 2))
sketch6.addConstraint(Sketcher.Constraint("DistanceX", 1, 2, 1, 1, 7.0))
sketch6.addConstraint(Sketcher.Constraint("DistanceX", 3, 1, 3, 2, 3.0))
sketch6.addConstraint(Sketcher.Constraint("DistanceY", -1, 1, 0, 2, 20.0))
sketch6.addConstraint(Sketcher.Constraint("DistanceX", -1, 1, 0, 2, 3.5))
groove = doc.addObject("PartDesign::Groove", "Groove")
body.addObject(groove)
groove.Profile = sketch6
groove.ReferenceAxis = (sketch6, ["H_Axis"])
groove.Angle = 360

sketch7 = doc.addObject("Sketcher::SketchObject", "Sketch006")
body.addObject(sketch7)
sketch7.Placement = App.Placement(V(7.707107, 0, 7.707107), App.Rotation(V(0.707106781, 0, -0.707106781), V(0, 0.999999999, 0), V(0.707106781, 0, 0.707106781), "ZXY"))
sketch7.addGeometry(Part.Circle(V(-14.4, 8, 0), V(0, 0, 1), 1), False)
sketch7.addConstraint(Sketcher.Constraint("Diameter", 0, 2.0))
sketch7.addConstraint(Sketcher.Constraint("DistanceY", -1, 1, 0, 3, 8.0))
sketch7.addConstraint(Sketcher.Constraint("DistanceX", 0, 3, -1, 1, 14.410862))
doc.recompute()
hole = doc.addObject("PartDesign::Hole", "Hole")
body.addObject(hole)
hole.Profile = sketch7
hole.ThreadType = "None"
hole.Diameter = 2
hole.DepthType = "ThroughAll"
doc.recompute()

polarpattern = doc.addObject("PartDesign::PolarPattern", "PolarPattern")
body.addObject(polarpattern)
polarpattern.Originals = [hole]
polarpattern.Axis = (doc.Y_Axis, [""])
polarpattern.Angle = 360
polarpattern.Occurrences = 4
body.Tip = polarpattern

sketch8 = doc.addObject("Sketcher::SketchObject", "Sketch007")
body.addObject(sketch8)
sketch8.AttachmentSupport = (doc.XZ_Plane, [""])
sketch8.MapMode = "FlatFace"
sketch8.AttachmentOffset = App.Placement(V(0, 0, 8), App.Rotation())
sketch8.addGeometry(Part.LineSegment(V(-28.4, 14.4, 0), V(10.9, 14.4, 0)), False)
sketch8.addGeometry(Part.LineSegment(V(10.9, 14.4, 0), V(10.9, 13.4, 0)), False)
sketch8.addGeometry(Part.LineSegment(V(10.9, 13.4, 0), V(-27.8, 13.4, 0)), False)
sketch8.addGeometry(Part.LineSegment(V(-27.8, 13.4, 0), V(-28.4, 14.4, 0)), False)
sketch8.addGeometry(Part.LineSegment(V(10.9, 14.4, 0), V(-28.4, 14.4, 0)), True)
sketch8.addConstraint(Sketcher.Constraint("Coincident", 0, 2, 1, 1))
sketch8.addConstraint(Sketcher.Constraint("Coincident", 1, 2, 2, 1))
sketch8.addConstraint(Sketcher.Constraint("Coincident", 2, 2, 3, 1))
sketch8.addConstraint(Sketcher.Constraint("Coincident", 3, 2, 0, 1))
sketch8.addConstraint(Sketcher.Constraint("Horizontal", 0))
sketch8.addConstraint(Sketcher.Constraint("Vertical", 1))
sketch8.addConstraint(Sketcher.Constraint("Horizontal", 2))
sketch8.addConstraint(Sketcher.Constraint("Horizontal", 4))
sketch8.addConstraint(Sketcher.Constraint("Coincident", 4, 1, 0, 2))
sketch8.addConstraint(Sketcher.Constraint("Equal", 0, 4))
sketch8.addConstraint(Sketcher.Constraint("DistanceY", 1, 2, 1, 1, 1.0))
sketch8.addConstraint(Sketcher.Constraint("Angle", 3, Q("121 deg")))
sketch8.addConstraint(Sketcher.Constraint("DistanceX", 2, 2, 2, 1, 38.7))
sketch8.addConstraint(Sketcher.Constraint("DistanceX", -1, 1, 0, 2, 10.899495))
sketch8.addConstraint(Sketcher.Constraint("DistanceY", -1, 1, 0, 2, 14.410862))
groove2 = doc.addObject("PartDesign::Groove", "Groove001")
body.addObject(groove2)
groove2.Profile = sketch8
groove2.ReferenceAxis = (sketch8, ["Axis0"])
groove2.Angle = 360
doc.recompute()

polarpattern2 = doc.addObject("PartDesign::PolarPattern", "PolarPattern001")
body.addObject(polarpattern2)
polarpattern2.Originals = [groove2]
polarpattern2.Axis = (doc.Y_Axis, [""])
polarpattern2.Angle = 360
polarpattern2.Occurrences = 4
body.Tip = polarpattern2

doc.recompute()
